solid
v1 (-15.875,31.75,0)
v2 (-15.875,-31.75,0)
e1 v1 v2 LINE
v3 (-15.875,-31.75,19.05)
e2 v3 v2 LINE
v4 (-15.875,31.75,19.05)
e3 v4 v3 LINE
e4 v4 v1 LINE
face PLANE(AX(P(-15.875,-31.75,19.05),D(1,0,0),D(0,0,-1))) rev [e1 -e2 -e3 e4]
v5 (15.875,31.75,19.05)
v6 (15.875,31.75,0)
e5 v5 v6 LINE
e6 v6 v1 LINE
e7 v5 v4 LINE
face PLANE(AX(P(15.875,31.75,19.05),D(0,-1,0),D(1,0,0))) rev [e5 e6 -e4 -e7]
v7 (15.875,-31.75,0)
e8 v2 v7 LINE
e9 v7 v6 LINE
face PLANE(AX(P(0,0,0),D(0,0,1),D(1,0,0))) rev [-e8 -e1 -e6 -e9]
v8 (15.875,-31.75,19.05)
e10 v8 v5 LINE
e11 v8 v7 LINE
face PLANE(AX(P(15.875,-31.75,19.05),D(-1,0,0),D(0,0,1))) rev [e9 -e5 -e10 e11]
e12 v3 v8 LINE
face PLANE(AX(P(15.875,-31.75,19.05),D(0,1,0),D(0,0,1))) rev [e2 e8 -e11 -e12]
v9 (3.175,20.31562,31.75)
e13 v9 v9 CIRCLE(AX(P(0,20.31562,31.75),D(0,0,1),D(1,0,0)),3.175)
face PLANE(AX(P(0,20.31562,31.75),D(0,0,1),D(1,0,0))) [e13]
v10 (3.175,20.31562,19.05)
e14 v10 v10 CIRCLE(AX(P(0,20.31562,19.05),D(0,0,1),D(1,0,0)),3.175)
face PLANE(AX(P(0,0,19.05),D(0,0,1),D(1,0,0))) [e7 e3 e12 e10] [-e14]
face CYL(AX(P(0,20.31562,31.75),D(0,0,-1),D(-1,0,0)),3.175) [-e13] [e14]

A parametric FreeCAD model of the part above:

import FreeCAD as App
import Part
import Sketcher
Q = App.Units.Quantity


def add_polygon(sketch, points):
    """Adds a closed chain of lines whose ends are joined by coincident constraints."""
    first, n = sketch.GeometryCount, len(points)
    for a, b in zip(points, points[1:] + points[:1]):
        sketch.addGeometry(Part.LineSegment(App.Vector(*a, 0), App.Vector(*b, 0)), False)
    for i in range(n):
        sketch.addConstraint(Sketcher.Constraint("Coincident", first + i, 2, first + (i + 1) % n, 1))

doc = App.newDocument("Part")
body = doc.addObject("PartDesign::Body", "Body")

sketch1 = body.newObject("Sketcher::SketchObject", "Sketch")
sketch1.AttachmentSupport = (doc.getObject("XY_Plane"), [""])
sketch1.MapMode = "FlatFace"
add_polygon(sketch1, [(-16, 32), (-16, -32), (16, -32), (16, 32)])
sketch1.addConstraint([
    Sketcher.Constraint("Vertical", 0),
    Sketcher.Constraint("Horizontal", 1),
    Sketcher.Constraint("Vertical", 2),
    Sketcher.Constraint("Horizontal", 3),
    Sketcher.Constraint("Symmetric", 0, 2, 2, 2, -1, 1),
    Sketcher.Constraint("DistanceY", 0, 2, 0, 1, Q("2.5 in")),
    Sketcher.Constraint("DistanceX", 1, 1, 1, 2, Q("1.25 in")),
])
pad1 = body.newObject("PartDesign::Pad", "Pad")
pad1.Profile = sketch1
pad1.Length = Q("0.75 in")

sketch2 = body.newObject("Sketcher::SketchObject", "Sketch001")
sketch2.AttachmentSupport = (doc.getObject("XY_Plane"), [""])
sketch2.MapMode = "FlatFace"
sketch2.AttachmentOffset = App.Placement(App.Vector(0, 0, 0.75 * 25.4), App.Rotation())
sketch2.addGeometry(Part.Circle(App.Vector(0, 20.3, 0), App.Vector(0, 0, 1), 3.2), False)
sketch2.addConstraint([
    Sketcher.Constraint("PointOnObject", 0, 3, -2),
    Sketcher.Constraint("Diameter", 0, Q("0.25 in")),
    Sketcher.Constraint("DistanceY", -1, 1, 0, 3, 20.31562),
])
pad2 = body.newObject("PartDesign::Pad", "Pad001")
pad2.Profile = sketch2
pad2.Length = Q("0.5 in")

doc.recompute()
